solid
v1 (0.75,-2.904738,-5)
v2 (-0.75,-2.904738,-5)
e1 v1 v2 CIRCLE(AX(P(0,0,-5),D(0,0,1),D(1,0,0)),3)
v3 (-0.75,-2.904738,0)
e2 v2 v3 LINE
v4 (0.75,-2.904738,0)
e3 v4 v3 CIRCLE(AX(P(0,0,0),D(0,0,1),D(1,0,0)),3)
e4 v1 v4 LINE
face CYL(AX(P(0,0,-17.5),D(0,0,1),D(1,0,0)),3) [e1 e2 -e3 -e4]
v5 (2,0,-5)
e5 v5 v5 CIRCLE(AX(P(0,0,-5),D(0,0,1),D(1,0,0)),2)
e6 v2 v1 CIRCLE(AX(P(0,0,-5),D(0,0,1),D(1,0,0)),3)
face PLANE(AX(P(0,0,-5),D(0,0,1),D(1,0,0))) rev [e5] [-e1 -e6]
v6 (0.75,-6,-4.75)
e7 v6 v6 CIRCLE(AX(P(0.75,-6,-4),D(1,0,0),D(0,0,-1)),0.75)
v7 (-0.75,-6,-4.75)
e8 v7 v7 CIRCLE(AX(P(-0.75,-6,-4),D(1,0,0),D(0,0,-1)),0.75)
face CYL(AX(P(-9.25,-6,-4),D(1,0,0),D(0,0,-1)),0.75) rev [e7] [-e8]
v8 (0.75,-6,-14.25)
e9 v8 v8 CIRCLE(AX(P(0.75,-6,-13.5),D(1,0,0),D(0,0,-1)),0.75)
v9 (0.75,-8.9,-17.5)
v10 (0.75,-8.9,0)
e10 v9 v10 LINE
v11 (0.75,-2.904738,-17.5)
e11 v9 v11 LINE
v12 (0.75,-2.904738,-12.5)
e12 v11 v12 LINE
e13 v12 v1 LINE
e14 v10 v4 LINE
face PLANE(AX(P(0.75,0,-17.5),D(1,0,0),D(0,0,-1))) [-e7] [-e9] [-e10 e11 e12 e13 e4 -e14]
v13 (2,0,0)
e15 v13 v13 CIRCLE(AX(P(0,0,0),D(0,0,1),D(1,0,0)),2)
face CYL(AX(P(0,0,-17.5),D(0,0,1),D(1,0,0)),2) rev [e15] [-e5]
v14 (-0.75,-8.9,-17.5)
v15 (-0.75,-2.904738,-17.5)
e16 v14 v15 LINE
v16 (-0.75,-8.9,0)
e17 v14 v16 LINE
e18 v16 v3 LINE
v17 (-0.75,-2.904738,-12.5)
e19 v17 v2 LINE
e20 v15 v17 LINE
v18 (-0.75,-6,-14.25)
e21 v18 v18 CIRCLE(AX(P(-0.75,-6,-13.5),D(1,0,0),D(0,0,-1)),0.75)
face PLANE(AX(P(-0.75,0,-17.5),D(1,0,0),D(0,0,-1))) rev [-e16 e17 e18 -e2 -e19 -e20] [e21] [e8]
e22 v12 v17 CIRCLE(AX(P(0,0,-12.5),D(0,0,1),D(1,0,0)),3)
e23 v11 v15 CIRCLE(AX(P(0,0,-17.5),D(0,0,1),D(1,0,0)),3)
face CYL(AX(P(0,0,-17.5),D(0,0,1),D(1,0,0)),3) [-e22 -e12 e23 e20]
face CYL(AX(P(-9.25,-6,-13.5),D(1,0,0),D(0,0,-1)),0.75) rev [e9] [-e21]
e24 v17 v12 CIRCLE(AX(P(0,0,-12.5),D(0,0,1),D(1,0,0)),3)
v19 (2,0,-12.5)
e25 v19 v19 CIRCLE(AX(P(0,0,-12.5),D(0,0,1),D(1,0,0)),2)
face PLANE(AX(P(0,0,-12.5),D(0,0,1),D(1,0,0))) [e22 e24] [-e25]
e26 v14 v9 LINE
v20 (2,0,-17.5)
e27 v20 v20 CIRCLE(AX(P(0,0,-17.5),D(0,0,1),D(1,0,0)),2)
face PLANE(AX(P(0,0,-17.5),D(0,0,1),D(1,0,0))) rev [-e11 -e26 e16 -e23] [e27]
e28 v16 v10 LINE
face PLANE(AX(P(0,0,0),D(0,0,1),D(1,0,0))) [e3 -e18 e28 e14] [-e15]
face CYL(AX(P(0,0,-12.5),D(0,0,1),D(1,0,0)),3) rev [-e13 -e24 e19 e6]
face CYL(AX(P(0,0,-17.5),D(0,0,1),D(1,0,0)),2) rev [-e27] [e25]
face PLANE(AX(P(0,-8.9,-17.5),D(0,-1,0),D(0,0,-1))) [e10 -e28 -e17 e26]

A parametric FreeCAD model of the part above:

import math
import FreeCAD as App
import Part
import Sketcher

doc = App.newDocument("Part")
body = doc.addObject("PartDesign::Body", "Body")

# Sketch on XY plane
sketch1 = body.newObject("Sketcher::SketchObject", "Sketch")
sketch1.AttachmentSupport = (doc.getObject("XY_Plane"), [""])
sketch1.MapMode = "FlatFace"
sketch1.addGeometry([
    Part.ArcOfCircle(Part.Circle(App.Vector(0, 0, 0), App.Vector(0, 0, 1), 3), math.radians(-76), math.radians(256)),  # 0
    Part.LineSegment(App.Vector(-0.8, -2.9, 0), App.Vector(-0.8, -8.9, 0)),  # 1
    Part.LineSegment(App.Vector(-0.8, -8.9, 0), App.Vector(0.8, -8.9, 0)),  # 2
    Part.LineSegment(App.Vector(0.8, -8.9, 0), App.Vector(0.8, -2.9, 0)),  # 3
    Part.Circle(App.Vector(0, 0, 0), App.Vector(0, 0, 1), 2),  # 4
], False)
sketch1.addConstraint([
    Sketcher.Constraint("Coincident", 0, 2, 1, 1),
    Sketcher.Constraint("Coincident", 1, 2, 2, 1),
    Sketcher.Constraint("Coincident", 2, 2, 3, 1),
    Sketcher.Constraint("Coincident", 3, 2, 0, 1),
    Sketcher.Constraint("Vertical", 1),
    Sketcher.Constraint("Horizontal", 2),
    Sketcher.Constraint("Vertical", 3),
    Sketcher.Constraint("Coincident", 0, 3, -1, 1),
    Sketcher.Constraint("Coincident", 4, 3, -1, 1),
    Sketcher.Constraint("Horizontal", 0, 2, 3, 2),
    Sketcher.Constraint("Diameter", 4, 4.0),
    Sketcher.Constraint("Radius", 0, 3.0),
    Sketcher.Constraint("DistanceX", 2, 1, 2, 2, 1.5),
    Sketcher.Constraint("DistanceY", 1, 2, -1, 1, 8.9),
])
pad1 = body.newObject("PartDesign::Pad", "Pad")
pad1.Profile = sketch1
pad1.Length = 17.5
pad1.Reversed = True

# Sketch on XY plane
sketch2 = body.newObject("Sketcher::SketchObject", "Sketch001")
sketch2.AttachmentSupport = (doc.getObject("XY_Plane"), [""])
sketch2.MapMode = "FlatFace"
sketch2.AttachmentOffset = App.Placement(App.Vector(0, 0, -5), App.Rotation())
sketch2.addGeometry(Part.Circle(App.Vector(0, 0, 0), App.Vector(0, 0, 1), 3), False)
sketch2.addConstraint([
    Sketcher.Constraint("Coincident", 0, 3, -1, 1),
    Sketcher.Constraint("Diameter", 0, 6.0),
])
pocket1 = body.newObject("PartDesign::Pocket", "Pocket")
pocket1.Profile = sketch2
pocket1.Length = 7.5

# Sketch on YZ plane
sketch3 = body.newObject("Sketcher::SketchObject", "Sketch002")
sketch3.AttachmentSupport = (doc.getObject("YZ_Plane"), [""])
sketch3.MapMode = "FlatFace"
sketch3.AttachmentOffset = App.Placement(App.Vector(0, 0, 0.75), App.Rotation())
sketch3.addGeometry([
    Part.Circle(App.Vector(-6, -4, 0), App.Vector(0, 0, 1), 0.8),
    Part.Circle(App.Vector(-6, -13.5, 0), App.Vector(0, 0, 1), 0.8),
], False)
sketch3.addConstraint([
    Sketcher.Constraint("Equal", 0, 1),
    Sketcher.Constraint("Vertical", 0, 3, 1, 3),
    Sketcher.Constraint("Diameter", 0, 1.5),
    Sketcher.Constraint("DistanceX", 0, 3, -1, 1, 6.0),
    Sketcher.Constraint("DistanceY", 0, 3, -1, 1, 4.0),
    Sketcher.Constraint("DistanceY", 1, 3, -1, 1, 13.5),
])
pocket2 = body.newObject("PartDesign::Pocket", "Pocket001")
pocket2.Profile = sketch3
pocket2.Length = 10

doc.recompute()
